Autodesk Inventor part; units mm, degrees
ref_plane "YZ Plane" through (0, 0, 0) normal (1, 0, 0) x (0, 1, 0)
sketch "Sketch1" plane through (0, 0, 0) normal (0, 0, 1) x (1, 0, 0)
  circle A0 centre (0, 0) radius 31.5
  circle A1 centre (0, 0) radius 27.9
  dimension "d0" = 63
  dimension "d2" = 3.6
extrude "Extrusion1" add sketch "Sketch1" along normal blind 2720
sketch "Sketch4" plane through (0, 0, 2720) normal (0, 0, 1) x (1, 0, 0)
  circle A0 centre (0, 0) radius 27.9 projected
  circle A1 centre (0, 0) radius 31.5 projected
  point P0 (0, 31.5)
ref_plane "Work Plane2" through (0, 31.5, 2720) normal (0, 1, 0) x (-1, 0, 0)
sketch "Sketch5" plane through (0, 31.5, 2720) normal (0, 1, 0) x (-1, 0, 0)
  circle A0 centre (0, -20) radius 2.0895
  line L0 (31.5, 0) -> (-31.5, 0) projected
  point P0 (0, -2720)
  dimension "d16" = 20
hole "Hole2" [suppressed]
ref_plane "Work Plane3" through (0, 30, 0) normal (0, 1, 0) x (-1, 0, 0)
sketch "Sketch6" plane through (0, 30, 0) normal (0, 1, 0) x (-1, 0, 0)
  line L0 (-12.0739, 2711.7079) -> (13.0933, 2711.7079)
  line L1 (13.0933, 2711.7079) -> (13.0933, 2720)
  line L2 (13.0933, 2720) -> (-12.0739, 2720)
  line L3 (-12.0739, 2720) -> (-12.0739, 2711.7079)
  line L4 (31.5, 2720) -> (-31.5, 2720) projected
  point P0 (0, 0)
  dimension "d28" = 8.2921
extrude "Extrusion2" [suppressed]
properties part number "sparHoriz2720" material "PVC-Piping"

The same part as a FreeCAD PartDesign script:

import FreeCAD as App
import Part
import Sketcher
from FreeCAD import Vector
Q = App.Units.Quantity

doc = App.newDocument("Part")
body = doc.addObject("PartDesign::Body", "Body")

# Sketch on XY plane
sketch1 = doc.addObject("Sketcher::SketchObject", "Sketch")
body.addObject(sketch1)
sketch1.AttachmentSupport = (doc.XY_Plane, [""])
sketch1.MapMode = "FlatFace"
sketch1.addGeometry(Part.Circle(Vector(0, 0, 0), Vector(0, 0, 1), 32), False)
sketch1.addGeometry(Part.Circle(Vector(0, 0, 0), Vector(0, 0, 1), 28), False)
sketch1.addConstraint(Sketcher.Constraint("Coincident", 0, 3, -1, 1))
sketch1.addConstraint(Sketcher.Constraint("Coincident", 1, 3, -1, 1))
sketch1.addConstraint(Sketcher.Constraint("Diameter", 0, Q("63 mm")))
sketch1.addConstraint(Sketcher.Constraint("Diameter", 1, Q("55.8 mm")))
pad1 = doc.addObject("PartDesign::Pad", "Pad")
body.addObject(pad1)
pad1.Profile = sketch1
pad1.Length = 2720

doc.recompute()
